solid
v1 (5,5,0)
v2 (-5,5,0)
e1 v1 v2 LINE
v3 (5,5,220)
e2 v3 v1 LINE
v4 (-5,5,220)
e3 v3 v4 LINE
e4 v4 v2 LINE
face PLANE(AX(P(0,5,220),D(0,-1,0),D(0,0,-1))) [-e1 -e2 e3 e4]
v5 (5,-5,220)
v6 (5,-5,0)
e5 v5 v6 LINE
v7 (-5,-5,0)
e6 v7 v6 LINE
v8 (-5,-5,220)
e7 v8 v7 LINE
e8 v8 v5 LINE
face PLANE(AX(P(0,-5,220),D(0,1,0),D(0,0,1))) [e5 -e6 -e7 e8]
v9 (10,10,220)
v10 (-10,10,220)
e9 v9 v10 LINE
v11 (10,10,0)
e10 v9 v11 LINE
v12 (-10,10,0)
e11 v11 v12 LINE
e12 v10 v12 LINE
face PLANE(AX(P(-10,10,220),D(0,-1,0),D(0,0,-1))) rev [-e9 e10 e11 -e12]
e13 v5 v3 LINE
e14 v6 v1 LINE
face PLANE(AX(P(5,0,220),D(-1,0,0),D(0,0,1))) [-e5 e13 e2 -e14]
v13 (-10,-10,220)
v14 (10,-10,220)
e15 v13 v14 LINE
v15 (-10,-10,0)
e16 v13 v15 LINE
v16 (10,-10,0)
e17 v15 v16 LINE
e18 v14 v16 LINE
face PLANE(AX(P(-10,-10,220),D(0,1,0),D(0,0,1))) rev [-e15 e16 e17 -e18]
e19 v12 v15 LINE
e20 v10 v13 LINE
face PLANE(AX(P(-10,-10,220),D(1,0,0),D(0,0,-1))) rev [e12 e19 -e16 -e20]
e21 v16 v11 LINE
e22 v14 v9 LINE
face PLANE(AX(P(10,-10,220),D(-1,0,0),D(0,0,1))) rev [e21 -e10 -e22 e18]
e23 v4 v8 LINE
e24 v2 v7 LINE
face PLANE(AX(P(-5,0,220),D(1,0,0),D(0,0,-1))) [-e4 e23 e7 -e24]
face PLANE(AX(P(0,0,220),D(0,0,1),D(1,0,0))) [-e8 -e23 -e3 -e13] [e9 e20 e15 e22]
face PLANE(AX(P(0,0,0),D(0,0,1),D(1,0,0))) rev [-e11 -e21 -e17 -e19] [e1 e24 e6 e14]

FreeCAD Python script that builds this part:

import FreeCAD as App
import Part
import Sketcher
from FreeCAD import Vector
Q = App.Units.Quantity

doc = App.newDocument("Part")
body = doc.addObject("PartDesign::Body", "Body")

# Sketch on XY plane
sketch1 = doc.addObject("Sketcher::SketchObject", "Sketch")
body.addObject(sketch1)
sketch1.AttachmentSupport = (doc.XY_Plane, [""])
sketch1.MapMode = "FlatFace"
sketch1.addGeometry([
    Part.LineSegment(Vector(-10, 10, 0), Vector(-10, -10, 0)),  # 0
    Part.LineSegment(Vector(-10, -10, 0), Vector(10, -10, 0)),  # 1
    Part.LineSegment(Vector(10, -10, 0), Vector(10, 10, 0)),  # 2
    Part.LineSegment(Vector(10, 10, 0), Vector(-10, 10, 0)),  # 3
    Part.LineSegment(Vector(5, -5, 0), Vector(-5, -5, 0)),  # 4
    Part.LineSegment(Vector(-5, -5, 0), Vector(-5, 5, 0)),  # 5
    Part.LineSegment(Vector(-5, 5, 0), Vector(5, 5, 0)),  # 6
    Part.LineSegment(Vector(5, 5, 0), Vector(5, -5, 0)),  # 7
], False)
sketch1.addConstraint([
    Sketcher.Constraint("Coincident", 0, 2, 1, 1),
    Sketcher.Constraint("Coincident", 1, 2, 2, 1),
    Sketcher.Constraint("Coincident", 2, 2, 3, 1),
    Sketcher.Constraint("Coincident", 3, 2, 0, 1),
    Sketcher.Constraint("Coincident", 4, 2, 5, 1),
    Sketcher.Constraint("Coincident", 5, 2, 6, 1),
    Sketcher.Constraint("Coincident", 6, 2, 7, 1),
    Sketcher.Constraint("Coincident", 7, 2, 4, 1),
    Sketcher.Constraint("Vertical", 0),
    Sketcher.Constraint("Horizontal", 1),
    Sketcher.Constraint("Vertical", 2),
    Sketcher.Constraint("Horizontal", 3),
    Sketcher.Constraint("Horizontal", 4),
    Sketcher.Constraint("Vertical", 5),
    Sketcher.Constraint("Horizontal", 6),
    Sketcher.Constraint("Vertical", 7),
    Sketcher.Constraint("Symmetric", 0, 2, 2, 2, -1, 1),
    Sketcher.Constraint("Symmetric", 4, 2, 6, 2, -1, 1),
    Sketcher.Constraint("Equal", 3, 0),
    Sketcher.Constraint("Equal", 6, 5),
    Sketcher.Constraint("DistanceX", 1, 1, 1, 2, Q("20 mm")),
    Sketcher.Constraint("DistanceX", 4, 2, 4, 1, Q("10 mm")),
])
pad1 = doc.addObject("PartDesign::Pad", "Pad")
body.addObject(pad1)
pad1.Profile = sketch1
pad1.Length = 220

doc.recompute()
